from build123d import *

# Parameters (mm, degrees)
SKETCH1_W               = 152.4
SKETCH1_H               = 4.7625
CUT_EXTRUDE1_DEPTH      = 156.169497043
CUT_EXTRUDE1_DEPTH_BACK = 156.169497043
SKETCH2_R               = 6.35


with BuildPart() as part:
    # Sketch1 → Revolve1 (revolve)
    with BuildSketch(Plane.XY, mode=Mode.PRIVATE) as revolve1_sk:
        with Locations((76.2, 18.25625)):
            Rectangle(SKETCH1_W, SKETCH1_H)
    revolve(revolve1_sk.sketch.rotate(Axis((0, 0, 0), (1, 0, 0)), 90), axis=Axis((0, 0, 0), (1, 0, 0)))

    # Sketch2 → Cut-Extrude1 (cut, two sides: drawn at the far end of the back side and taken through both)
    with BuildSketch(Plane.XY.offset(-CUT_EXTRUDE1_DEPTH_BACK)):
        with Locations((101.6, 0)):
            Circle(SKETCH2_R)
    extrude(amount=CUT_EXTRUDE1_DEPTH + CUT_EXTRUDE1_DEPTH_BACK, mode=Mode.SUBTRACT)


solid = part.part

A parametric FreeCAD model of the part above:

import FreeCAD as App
import Part
import Sketcher

V = App.Vector
Q = App.Units.Quantity


def add_polygon(sketch, points):
    """Adds a closed chain of lines whose ends are joined by coincident constraints."""
    first, n = sketch.GeometryCount, len(points)
    for a, b in zip(points, points[1:] + points[:1]):
        sketch.addGeometry(Part.LineSegment(App.Vector(*a, 0), App.Vector(*b, 0)), False)
    for i in range(n):
        sketch.addConstraint(Sketcher.Constraint("Coincident", first + i, 2, first + (i + 1) % n, 1))

doc = App.newDocument("Part")
params = doc.addObject("Spreadsheet::Sheet", "Params")
for row, (alias, value) in enumerate([
    ("sketch1_width", "6 in"),
    ("sketch1_height", "0.1875 in"),
    ("revolution_angle", "360 deg"),
    ("sketch2_diameter", "0.5 in"),
], start=1):
    params.set(f"A{row}", alias)
    params.set(f"B{row}", "=" + value)
    params.setAlias(f"B{row}", alias)

body = doc.addObject("PartDesign::Body", "Body")

# Sketch on XY plane
sketch1 = doc.addObject("Sketcher::SketchObject", "Sketch")
body.addObject(sketch1)
sketch1.AttachmentSupport = (doc.XY_Plane, [""])
sketch1.MapMode = "FlatFace"
add_polygon(sketch1, [(0, 20.6), (0, 15.9), (152.4, 15.9), (152.4, 20.6)])  # lines 0-3
sketch1.addConstraint(Sketcher.Constraint("Vertical", 0))
sketch1.addConstraint(Sketcher.Constraint("Horizontal", 1))
sketch1.addConstraint(Sketcher.Constraint("Vertical", 2))
sketch1.addConstraint(Sketcher.Constraint("Horizontal", 3))
sketch1.addConstraint(Sketcher.Constraint("PointOnObject", 0, 2, -2))
sketch1.addConstraint(Sketcher.Constraint("DistanceX", 1, 1, 1, 2, Q("6 in")))
sketch1.addConstraint(Sketcher.Constraint("DistanceY", 0, 2, 0, 1, Q("0.1875 in")))
sketch1.addConstraint(Sketcher.Constraint("DistanceY", -1, 1, 0, 2, Q("0.625 in")))
sketch1.setExpression("Constraints[9]", "Params.sketch1_width")
sketch1.setExpression("Constraints[10]", "Params.sketch1_height")
revolution = doc.addObject("PartDesign::Revolution", "Revolution")
body.addObject(revolution)
revolution.Profile = sketch1
revolution.ReferenceAxis = (sketch1, ["H_Axis"])
revolution.setExpression("Angle", "Params.revolution_angle")

# Sketch on XY plane
sketch2 = doc.addObject("Sketcher::SketchObject", "Sketch001")
body.addObject(sketch2)
sketch2.AttachmentSupport = (doc.XY_Plane, [""])
sketch2.MapMode = "FlatFace"
sketch2.addGeometry(Part.Circle(V(102, 0, 0), V(0, 0, 1), 6), False)
sketch2.addConstraint(Sketcher.Constraint("PointOnObject", 0, 3, -1))
sketch2.addConstraint(Sketcher.Constraint("Diameter", 0, Q("0.5 in")))
sketch2.addConstraint(Sketcher.Constraint("DistanceX", -1, 1, 0, 3, Q("4 in")))
sketch2.setExpression("Constraints[1]", "Params.sketch2_diameter")
pocket1 = doc.addObject("PartDesign::Pocket", "Pocket")
body.addObject(pocket1)
pocket1.Profile = sketch2
pocket1.Type = "ThroughAll"
pocket1.Midplane = True

doc.recompute()
